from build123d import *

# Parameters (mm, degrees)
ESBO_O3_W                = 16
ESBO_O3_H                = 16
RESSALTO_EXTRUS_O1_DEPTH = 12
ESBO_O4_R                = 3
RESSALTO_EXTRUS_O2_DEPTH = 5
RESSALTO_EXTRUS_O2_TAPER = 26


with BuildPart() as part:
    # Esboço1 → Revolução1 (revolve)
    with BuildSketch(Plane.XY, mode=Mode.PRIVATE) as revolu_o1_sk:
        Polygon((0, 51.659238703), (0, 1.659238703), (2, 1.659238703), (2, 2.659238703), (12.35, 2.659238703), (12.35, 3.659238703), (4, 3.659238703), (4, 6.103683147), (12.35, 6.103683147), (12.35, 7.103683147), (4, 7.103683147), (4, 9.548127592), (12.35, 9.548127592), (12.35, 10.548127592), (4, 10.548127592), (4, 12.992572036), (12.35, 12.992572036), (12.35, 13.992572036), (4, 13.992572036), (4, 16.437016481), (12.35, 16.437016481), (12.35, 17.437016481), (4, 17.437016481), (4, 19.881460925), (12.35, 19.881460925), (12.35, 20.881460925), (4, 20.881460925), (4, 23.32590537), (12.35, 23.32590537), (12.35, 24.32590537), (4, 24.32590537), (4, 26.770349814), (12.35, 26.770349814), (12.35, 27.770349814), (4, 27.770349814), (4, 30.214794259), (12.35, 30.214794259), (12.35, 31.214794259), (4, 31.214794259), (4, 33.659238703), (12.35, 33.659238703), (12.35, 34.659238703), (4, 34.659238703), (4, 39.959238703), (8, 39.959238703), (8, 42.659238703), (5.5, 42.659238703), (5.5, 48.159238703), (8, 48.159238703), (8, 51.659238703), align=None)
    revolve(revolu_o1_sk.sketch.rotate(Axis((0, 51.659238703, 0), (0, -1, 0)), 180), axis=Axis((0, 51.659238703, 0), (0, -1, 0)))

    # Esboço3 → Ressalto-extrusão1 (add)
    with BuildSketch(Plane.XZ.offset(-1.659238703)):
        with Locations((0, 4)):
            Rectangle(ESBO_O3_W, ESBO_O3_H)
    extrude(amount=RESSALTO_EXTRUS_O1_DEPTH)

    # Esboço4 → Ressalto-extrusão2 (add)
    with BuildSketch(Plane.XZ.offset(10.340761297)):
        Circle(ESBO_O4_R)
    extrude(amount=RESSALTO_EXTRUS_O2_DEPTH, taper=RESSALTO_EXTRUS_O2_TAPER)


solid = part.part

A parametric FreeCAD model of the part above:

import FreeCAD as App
import Part
import Sketcher


def add_polygon(sketch, points):
    """Adds a closed chain of lines whose ends are joined by coincident constraints."""
    first, n = sketch.GeometryCount, len(points)
    for a, b in zip(points, points[1:] + points[:1]):
        sketch.addGeometry(Part.LineSegment(App.Vector(*a, 0), App.Vector(*b, 0)), False)
    for i in range(n):
        sketch.addConstraint(Sketcher.Constraint("Coincident", first + i, 2, first + (i + 1) % n, 1))

doc = App.newDocument("Part")
params = doc.addObject("Spreadsheet::Sheet", "Params")
for row, (alias, value) in enumerate([
    ("sketch1_width", "2 mm"),
    ("sketch1_width2", "4 mm"),
    ("sketch1_width3", "8 mm"),
    ("sketch1_height", "50 mm"),
    ("sketch1_height2", "1 mm"),
    ("revolution_angle", "360 deg"),
    ("sketch2_width", "16 mm"),
    ("pad1_length", "12 mm"),
    ("sketch3_diameter", "6 mm"),
    ("pad2_length", "5 mm"),
    ("pad2_taper", "-26 deg"),
], start=1):
    params.set(f"A{row}", alias)
    params.set(f"B{row}", "=" + value)
    params.setAlias(f"B{row}", alias)

body = doc.addObject("PartDesign::Body", "Body")

# Sketch on XY plane
sketch1 = doc.addObject("Sketcher::SketchObject", "Sketch")
body.addObject(sketch1)
sketch1.AttachmentSupport = (doc.XY_Plane, [""])
sketch1.MapMode = "FlatFace"
add_polygon(sketch1, [(0, 51.659239), (0, 1.659239), (2, 1.659239), (2, 2.659239), (12.35, 2.659239), (12.35, 3.659239), (4, 3.659239), (4, 6.103683), (12.35, 6.103683), (12.35, 7.103683), (4, 7.103683), (4, 9.548128), (12.35, 9.548128), (12.35, 10.548128), (4, 10.548128), (4, 12.992572), (12.35, 12.992572), (12.35, 13.992572), (4, 13.992572), (4, 16.437016), (12.35, 16.437016), (12.35, 17.437016), (4, 17.437016), (4, 19.881461), (12.35, 19.881461), (12.35, 20.881461), (4, 20.881461), (4, 23.325905), (12.35, 23.325905), (12.35, 24.325905), (4, 24.325905), (4, 26.77035), (12.35, 26.77035), (12.35, 27.77035), (4, 27.77035), (4, 30.214794), (12.35, 30.214794), (12.35, 31.214794), (4, 31.214794), (4, 33.659239), (12.35, 33.659239), (12.35, 34.659239), (4, 34.659239), (4, 39.959239), (8, 39.959239), (8, 42.659239), (5.5, 42.659239), (5.5, 48.159239), (8, 48.159239), (8, 51.659239)])  # lines 0-49
sketch1.addConstraint([
    Sketcher.Constraint("Vertical", 0),
    Sketcher.Constraint("Horizontal", 1),
    Sketcher.Constraint("Vertical", 2),
    Sketcher.Constraint("Horizontal", 3),
    Sketcher.Constraint("Vertical", 4),
    Sketcher.Constraint("Horizontal", 5),
    Sketcher.Constraint("Vertical", 6),
    Sketcher.Constraint("Horizontal", 7),
    Sketcher.Constraint("Vertical", 8),
    Sketcher.Constraint("Horizontal", 9),
    Sketcher.Constraint("Vertical", 10),
    Sketcher.Constraint("Horizontal", 11),
    Sketcher.Constraint("Vertical", 12),
    Sketcher.Constraint("Horizontal", 13),
    Sketcher.Constraint("Vertical", 14),
    Sketcher.Constraint("Horizontal", 15),
    Sketcher.Constraint("Vertical", 16),
    Sketcher.Constraint("Horizontal", 17),
    Sketcher.Constraint("Vertical", 18),
    Sketcher.Constraint("Horizontal", 19),
    Sketcher.Constraint("Vertical", 20),
    Sketcher.Constraint("Horizontal", 21),
    Sketcher.Constraint("Vertical", 22),
    Sketcher.Constraint("Horizontal", 23),
    Sketcher.Constraint("Vertical", 24),
    Sketcher.Constraint("Horizontal", 25),
    Sketcher.Constraint("Vertical", 26),
    Sketcher.Constraint("Horizontal", 27),
    Sketcher.Constraint("Vertical", 28),
    Sketcher.Constraint("Horizontal", 29),
    Sketcher.Constraint("Vertical", 30),
    Sketcher.Constraint("Horizontal", 31),
    Sketcher.Constraint("Vertical", 32),
    Sketcher.Constraint("Horizontal", 33),
    Sketcher.Constraint("Vertical", 34),
    Sketcher.Constraint("Horizontal", 35),
    Sketcher.Constraint("Vertical", 36),
    Sketcher.Constraint("Horizontal", 37),
    Sketcher.Constraint("Vertical", 38),
    Sketcher.Constraint("Horizontal", 39),
    Sketcher.Constraint("Vertical", 40),
    Sketcher.Constraint("Horizontal", 41),
    Sketcher.Constraint("Vertical", 42),
    Sketcher.Constraint("Horizontal", 43),
    Sketcher.Constraint("Vertical", 44),
    Sketcher.Constraint("Horizontal", 45),
    Sketcher.Constraint("Vertical", 46),
    Sketcher.Constraint("Horizontal", 47),
    Sketcher.Constraint("Vertical", 48),
    Sketcher.Constraint("Horizontal", 49),
    Sketcher.Constraint("PointOnObject", 0, 2, -2),
    Sketcher.Constraint("Vertical", 4, 2, 7, 2),
    Sketcher.Constraint("Vertical", 6, 2, 9, 2),
    Sketcher.Constraint("Vertical", 8, 2, 11, 2),
    Sketcher.Constraint("Vertical", 10, 2, 13, 2),
    Sketcher.Constraint("Vertical", 12, 2, 15, 2),
    Sketcher.Constraint("Vertical", 14, 2, 17, 2),
    Sketcher.Constraint("Vertical", 16, 2, 19, 2),
    Sketcher.Constraint("Vertical", 18, 2, 21, 2),
    Sketcher.Constraint("Vertical", 20, 2, 23, 2),
    Sketcher.Constraint("Vertical", 22, 2, 25, 2),
    Sketcher.Constraint("Vertical", 24, 2, 27, 2),
    Sketcher.Constraint("Vertical", 26, 2, 29, 2),
    Sketcher.Constraint("Vertical", 28, 2, 31, 2),
    Sketcher.Constraint("Vertical", 30, 2, 33, 2),
    Sketcher.Constraint("Vertical", 32, 2, 35, 2),
    Sketcher.Constraint("Vertical", 34, 2, 37, 2),
    Sketcher.Constraint("Vertical", 36, 2, 39, 2),
    Sketcher.Constraint("Vertical", 38, 2, 41, 2),
    Sketcher.Constraint("Vertical", 44, 2, 47, 2),
    Sketcher.Constraint("Equal", 2, 4),
    Sketcher.Constraint("Equal", 4, 8),
    Sketcher.Constraint("Equal", 6, 10),
    Sketcher.Constraint("Equal", 8, 12),
    Sketcher.Constraint("Equal", 10, 14),
    Sketcher.Constraint("Equal", 12, 16),
    Sketcher.Constraint("Equal", 14, 18),
    Sketcher.Constraint("Equal", 16, 20),
    Sketcher.Constraint("Equal", 18, 22),
    Sketcher.Constraint("Equal", 20, 24),
    Sketcher.Constraint("Equal", 22, 26),
    Sketcher.Constraint("Equal", 24, 28),
    Sketcher.Constraint("Equal", 26, 30),
    Sketcher.Constraint("Equal", 28, 32),
    Sketcher.Constraint("Equal", 30, 34),
    Sketcher.Constraint("Equal", 32, 36),
    Sketcher.Constraint("Equal", 34, 38),
    Sketcher.Constraint("Equal", 36, 40),
    Sketcher.Constraint("DistanceX", 1, 1, 1, 2, 2.0),
    Sketcher.Constraint("DistanceX", 43, 1, 43, 2, 4.0),
    Sketcher.Constraint("DistanceX", 49, 2, 49, 1, 8.0),
    Sketcher.Constraint("DistanceY", 0, 2, 0, 1, 50.0),
    Sketcher.Constraint("DistanceY", 2, 1, 2, 2, 1.0),
    Sketcher.Constraint("DistanceX", 45, 2, 45, 1, 2.5),
    Sketcher.Constraint("DistanceY", 42, 1, 42, 2, 5.3),
    Sketcher.Constraint("DistanceY", 44, 1, 44, 2, 2.7),
    Sketcher.Constraint("DistanceY", 46, 1, 46, 2, 5.5),
    Sketcher.Constraint("DistanceY", 48, 1, 48, 2, 3.5),
    Sketcher.Constraint("DistanceX", 3, 1, 3, 2, 10.35),
    Sketcher.Constraint("DistanceY", -1, 1, 0, 2, 1.659239),
])
sketch1.setExpression("Constraints[138]", "Params.sketch1_width")
sketch1.setExpression("Constraints[139]", "Params.sketch1_width2")
sketch1.setExpression("Constraints[140]", "Params.sketch1_width3")
sketch1.setExpression("Constraints[141]", "Params.sketch1_height")
sketch1.setExpression("Constraints[142]", "Params.sketch1_height2")
revolution = doc.addObject("PartDesign::Revolution", "Revolution")
body.addObject(revolution)
revolution.Profile = sketch1
revolution.ReferenceAxis = (sketch1, ["V_Axis"])
revolution.setExpression("Angle", "Params.revolution_angle")

# Sketch on XZ plane
sketch2 = doc.addObject("Sketcher::SketchObject", "Sketch001")
body.addObject(sketch2)
sketch2.AttachmentSupport = (doc.XZ_Plane, [""])
sketch2.MapMode = "FlatFace"
sketch2.AttachmentOffset = App.Placement(App.Vector(0, 0, -1.659239), App.Rotation())
add_polygon(sketch2, [(-8, 12), (-8, -4), (8, -4), (8, 12)])  # lines 0-3
sketch2.addConstraint([
    Sketcher.Constraint("Vertical", 0),
    Sketcher.Constraint("Horizontal", 1),
    Sketcher.Constraint("Vertical", 2),
    Sketcher.Constraint("Horizontal", 3),
    Sketcher.Constraint("Equal", 3, 0),
    Sketcher.Constraint("DistanceX", 1, 1, 1, 2, 16.0),
    Sketcher.Constraint("DistanceX", 0, 2, -1, 1, 8.0),
    Sketcher.Constraint("DistanceY", 0, 2, -1, 1, 4.0),
])
sketch2.setExpression("Constraints[9]", "Params.sketch2_width")
pad1 = doc.addObject("PartDesign::Pad", "Pad")
body.addObject(pad1)
pad1.Profile = sketch2
pad1.setExpression("Length", "Params.pad1_length")

# Sketch on XZ plane
sketch3 = doc.addObject("Sketcher::SketchObject", "Sketch002")
body.addObject(sketch3)
sketch3.AttachmentSupport = (doc.XZ_Plane, [""])
sketch3.MapMode = "FlatFace"
sketch3.AttachmentOffset = App.Placement(App.Vector(0, 0, 10.340761), App.Rotation())
sketch3.addGeometry(Part.Circle(App.Vector(0, 0, 0), App.Vector(0, 0, 1), 3), False)
sketch3.addConstraint([
    Sketcher.Constraint("Coincident", 0, 3, -1, 1),
    Sketcher.Constraint("Diameter", 0, 6.0),
])
sketch3.setExpression("Constraints[1]", "Params.sketch3_diameter")
pad2 = doc.addObject("PartDesign::Pad", "Pad001")
body.addObject(pad2)
pad2.Profile = sketch3
pad2.setExpression("Length", "Params.pad2_length")
pad2.setExpression("TaperAngle", "Params.pad2_taper")

doc.recompute()
